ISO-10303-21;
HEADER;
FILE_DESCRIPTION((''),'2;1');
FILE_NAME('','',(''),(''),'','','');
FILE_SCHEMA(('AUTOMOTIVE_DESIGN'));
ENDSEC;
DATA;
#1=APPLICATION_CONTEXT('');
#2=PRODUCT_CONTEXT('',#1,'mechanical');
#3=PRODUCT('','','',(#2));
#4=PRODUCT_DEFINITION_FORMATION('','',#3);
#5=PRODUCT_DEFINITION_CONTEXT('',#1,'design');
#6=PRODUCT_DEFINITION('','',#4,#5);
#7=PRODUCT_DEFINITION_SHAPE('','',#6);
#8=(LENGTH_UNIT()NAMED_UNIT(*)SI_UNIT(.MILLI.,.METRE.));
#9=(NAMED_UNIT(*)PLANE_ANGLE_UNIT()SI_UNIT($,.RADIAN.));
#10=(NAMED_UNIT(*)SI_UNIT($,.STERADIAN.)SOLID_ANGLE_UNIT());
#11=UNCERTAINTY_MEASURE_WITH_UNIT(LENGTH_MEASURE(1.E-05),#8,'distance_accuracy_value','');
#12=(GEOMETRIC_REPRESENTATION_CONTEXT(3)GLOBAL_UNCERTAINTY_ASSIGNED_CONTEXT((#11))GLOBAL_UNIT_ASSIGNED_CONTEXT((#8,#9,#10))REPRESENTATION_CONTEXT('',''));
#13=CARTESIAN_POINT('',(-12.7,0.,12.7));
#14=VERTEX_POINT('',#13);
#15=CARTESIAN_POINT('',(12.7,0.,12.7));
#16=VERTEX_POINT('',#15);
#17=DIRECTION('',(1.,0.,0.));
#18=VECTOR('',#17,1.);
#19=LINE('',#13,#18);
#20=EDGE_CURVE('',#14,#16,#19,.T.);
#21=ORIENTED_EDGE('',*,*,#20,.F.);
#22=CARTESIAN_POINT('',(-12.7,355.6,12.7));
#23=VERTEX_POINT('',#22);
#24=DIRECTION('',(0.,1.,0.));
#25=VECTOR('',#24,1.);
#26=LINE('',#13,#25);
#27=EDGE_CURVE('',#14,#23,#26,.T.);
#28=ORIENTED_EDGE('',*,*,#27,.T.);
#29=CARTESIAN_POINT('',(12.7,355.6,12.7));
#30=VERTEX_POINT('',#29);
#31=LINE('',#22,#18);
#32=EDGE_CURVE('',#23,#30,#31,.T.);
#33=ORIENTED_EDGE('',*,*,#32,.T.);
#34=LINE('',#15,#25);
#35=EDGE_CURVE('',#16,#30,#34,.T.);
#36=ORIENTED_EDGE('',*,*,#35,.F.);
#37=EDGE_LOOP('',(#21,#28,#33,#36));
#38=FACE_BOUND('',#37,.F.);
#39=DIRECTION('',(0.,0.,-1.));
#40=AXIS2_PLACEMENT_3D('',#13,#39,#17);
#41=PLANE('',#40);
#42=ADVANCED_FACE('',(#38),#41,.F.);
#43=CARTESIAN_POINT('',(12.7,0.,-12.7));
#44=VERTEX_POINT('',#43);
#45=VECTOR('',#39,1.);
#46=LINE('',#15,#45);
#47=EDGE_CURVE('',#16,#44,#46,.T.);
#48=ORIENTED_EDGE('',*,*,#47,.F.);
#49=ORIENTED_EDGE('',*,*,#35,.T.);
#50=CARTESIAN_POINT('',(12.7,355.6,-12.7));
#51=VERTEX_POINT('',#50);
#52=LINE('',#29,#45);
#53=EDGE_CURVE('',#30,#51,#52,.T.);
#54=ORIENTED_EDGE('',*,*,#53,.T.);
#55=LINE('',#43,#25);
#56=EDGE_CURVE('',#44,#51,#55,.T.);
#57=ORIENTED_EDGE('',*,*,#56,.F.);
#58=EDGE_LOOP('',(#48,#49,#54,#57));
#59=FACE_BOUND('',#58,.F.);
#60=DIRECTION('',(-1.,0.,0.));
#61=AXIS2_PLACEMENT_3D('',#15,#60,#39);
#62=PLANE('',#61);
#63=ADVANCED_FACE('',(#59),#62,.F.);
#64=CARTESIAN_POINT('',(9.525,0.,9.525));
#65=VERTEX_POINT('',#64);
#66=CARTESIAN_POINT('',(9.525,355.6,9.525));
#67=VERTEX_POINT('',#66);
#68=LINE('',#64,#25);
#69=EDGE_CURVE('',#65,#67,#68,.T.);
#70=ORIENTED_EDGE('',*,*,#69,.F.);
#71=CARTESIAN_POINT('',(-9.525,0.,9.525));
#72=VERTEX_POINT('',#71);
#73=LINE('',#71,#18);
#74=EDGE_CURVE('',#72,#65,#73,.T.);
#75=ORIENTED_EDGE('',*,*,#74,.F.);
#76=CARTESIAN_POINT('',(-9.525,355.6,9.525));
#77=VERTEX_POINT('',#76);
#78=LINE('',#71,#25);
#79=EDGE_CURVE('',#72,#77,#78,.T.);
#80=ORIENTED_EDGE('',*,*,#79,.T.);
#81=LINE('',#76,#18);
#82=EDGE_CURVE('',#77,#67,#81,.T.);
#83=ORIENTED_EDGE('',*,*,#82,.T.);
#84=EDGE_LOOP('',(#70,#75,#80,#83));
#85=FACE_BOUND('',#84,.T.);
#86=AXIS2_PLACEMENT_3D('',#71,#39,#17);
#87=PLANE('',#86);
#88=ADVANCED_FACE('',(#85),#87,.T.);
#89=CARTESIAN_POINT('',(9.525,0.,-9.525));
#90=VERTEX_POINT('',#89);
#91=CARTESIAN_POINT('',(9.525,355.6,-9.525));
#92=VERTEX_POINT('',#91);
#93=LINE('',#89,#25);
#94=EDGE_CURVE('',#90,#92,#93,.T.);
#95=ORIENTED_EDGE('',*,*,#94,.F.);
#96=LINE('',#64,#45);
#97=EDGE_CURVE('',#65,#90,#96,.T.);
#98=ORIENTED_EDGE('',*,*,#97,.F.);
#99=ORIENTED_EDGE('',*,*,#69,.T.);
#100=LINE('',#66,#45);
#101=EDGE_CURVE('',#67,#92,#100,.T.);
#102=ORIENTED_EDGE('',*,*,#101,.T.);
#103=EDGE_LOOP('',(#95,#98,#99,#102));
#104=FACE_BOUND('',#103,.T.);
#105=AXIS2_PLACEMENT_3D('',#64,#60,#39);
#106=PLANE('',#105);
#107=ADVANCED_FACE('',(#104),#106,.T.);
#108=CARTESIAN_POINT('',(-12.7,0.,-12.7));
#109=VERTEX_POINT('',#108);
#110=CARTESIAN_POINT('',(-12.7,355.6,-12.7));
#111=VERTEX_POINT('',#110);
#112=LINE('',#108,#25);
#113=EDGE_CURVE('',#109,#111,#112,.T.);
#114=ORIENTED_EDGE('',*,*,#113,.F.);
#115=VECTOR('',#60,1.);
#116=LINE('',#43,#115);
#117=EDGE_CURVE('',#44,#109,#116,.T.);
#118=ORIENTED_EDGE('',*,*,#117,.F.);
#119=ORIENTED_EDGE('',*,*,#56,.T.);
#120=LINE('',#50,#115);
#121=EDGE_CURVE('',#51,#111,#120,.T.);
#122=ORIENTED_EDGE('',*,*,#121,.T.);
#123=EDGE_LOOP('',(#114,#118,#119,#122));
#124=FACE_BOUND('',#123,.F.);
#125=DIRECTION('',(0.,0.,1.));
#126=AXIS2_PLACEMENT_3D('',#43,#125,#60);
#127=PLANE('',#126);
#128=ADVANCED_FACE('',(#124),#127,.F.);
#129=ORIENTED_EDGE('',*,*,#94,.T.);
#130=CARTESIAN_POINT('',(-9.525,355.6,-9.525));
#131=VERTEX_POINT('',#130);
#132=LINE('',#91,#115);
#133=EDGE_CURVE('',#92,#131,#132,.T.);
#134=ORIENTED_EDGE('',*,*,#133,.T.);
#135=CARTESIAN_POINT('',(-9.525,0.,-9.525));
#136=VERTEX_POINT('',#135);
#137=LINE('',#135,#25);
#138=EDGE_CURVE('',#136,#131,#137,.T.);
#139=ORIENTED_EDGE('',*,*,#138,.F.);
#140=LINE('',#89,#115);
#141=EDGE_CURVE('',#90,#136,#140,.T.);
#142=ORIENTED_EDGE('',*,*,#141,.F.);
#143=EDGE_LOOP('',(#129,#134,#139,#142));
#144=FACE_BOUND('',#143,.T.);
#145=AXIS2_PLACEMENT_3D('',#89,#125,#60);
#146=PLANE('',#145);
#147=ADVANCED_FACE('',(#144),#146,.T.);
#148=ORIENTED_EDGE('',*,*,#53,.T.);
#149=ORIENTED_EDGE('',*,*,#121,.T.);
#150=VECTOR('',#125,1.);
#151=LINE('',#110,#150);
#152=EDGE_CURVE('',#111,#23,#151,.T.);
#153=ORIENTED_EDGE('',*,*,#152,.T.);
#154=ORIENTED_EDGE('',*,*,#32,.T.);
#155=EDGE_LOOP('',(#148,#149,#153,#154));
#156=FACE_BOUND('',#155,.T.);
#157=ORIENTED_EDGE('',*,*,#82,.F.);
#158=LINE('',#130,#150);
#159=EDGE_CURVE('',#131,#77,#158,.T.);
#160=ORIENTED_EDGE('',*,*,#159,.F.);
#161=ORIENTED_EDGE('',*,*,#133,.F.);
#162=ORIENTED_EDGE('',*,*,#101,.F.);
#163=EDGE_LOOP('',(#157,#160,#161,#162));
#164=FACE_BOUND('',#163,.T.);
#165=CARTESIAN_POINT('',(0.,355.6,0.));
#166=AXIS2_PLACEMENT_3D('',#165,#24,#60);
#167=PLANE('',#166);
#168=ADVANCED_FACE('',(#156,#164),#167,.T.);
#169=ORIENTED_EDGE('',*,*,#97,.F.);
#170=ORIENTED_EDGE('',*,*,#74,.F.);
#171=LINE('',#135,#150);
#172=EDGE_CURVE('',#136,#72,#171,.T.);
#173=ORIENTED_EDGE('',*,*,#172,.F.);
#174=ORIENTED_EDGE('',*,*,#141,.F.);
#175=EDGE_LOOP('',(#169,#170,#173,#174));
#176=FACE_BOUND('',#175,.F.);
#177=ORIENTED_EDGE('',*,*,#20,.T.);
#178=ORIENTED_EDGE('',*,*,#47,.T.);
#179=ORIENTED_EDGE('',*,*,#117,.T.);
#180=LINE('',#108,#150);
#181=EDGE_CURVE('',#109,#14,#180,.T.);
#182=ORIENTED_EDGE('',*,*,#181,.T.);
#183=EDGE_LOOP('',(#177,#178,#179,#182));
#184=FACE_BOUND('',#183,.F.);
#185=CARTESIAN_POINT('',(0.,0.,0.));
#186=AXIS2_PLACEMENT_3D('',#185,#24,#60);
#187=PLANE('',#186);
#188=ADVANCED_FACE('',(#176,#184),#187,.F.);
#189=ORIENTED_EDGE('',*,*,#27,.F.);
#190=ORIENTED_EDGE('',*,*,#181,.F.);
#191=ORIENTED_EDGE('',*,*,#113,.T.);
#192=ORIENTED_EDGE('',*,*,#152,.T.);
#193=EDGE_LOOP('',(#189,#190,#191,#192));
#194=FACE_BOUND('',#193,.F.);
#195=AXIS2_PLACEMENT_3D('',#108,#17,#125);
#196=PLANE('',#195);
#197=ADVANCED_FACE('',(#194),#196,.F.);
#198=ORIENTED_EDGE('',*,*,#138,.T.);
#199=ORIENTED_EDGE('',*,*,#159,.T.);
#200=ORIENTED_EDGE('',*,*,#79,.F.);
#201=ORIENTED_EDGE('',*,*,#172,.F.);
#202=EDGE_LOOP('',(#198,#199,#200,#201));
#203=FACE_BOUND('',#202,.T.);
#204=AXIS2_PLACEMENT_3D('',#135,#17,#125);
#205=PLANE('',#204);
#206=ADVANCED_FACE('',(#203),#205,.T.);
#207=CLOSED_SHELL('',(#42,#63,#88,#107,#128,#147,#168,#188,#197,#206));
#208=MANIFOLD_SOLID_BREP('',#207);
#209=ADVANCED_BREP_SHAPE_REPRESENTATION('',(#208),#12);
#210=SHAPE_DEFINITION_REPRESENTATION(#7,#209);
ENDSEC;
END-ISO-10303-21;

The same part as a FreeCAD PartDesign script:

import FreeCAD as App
import Part
import Sketcher
Q = App.Units.Quantity

doc = App.newDocument("Part")
body = doc.addObject("PartDesign::Body", "Body")

sketch1 = body.newObject("Sketcher::SketchObject", "Sketch")
sketch1.AttachmentSupport = (doc.getObject("XZ_Plane"), [""])
sketch1.MapMode = "FlatFace"
sketch1.addGeometry([
    Part.LineSegment(App.Vector(-12.7, -12.7, 0), App.Vector(-12.7, 12.7, 0)),
    Part.LineSegment(App.Vector(-12.7, 12.7, 0), App.Vector(12.7, 12.7, 0)),
    Part.LineSegment(App.Vector(12.7, 12.7, 0), App.Vector(12.7, -12.7, 0)),
    Part.LineSegment(App.Vector(12.7, -12.7, 0), App.Vector(-12.7, -12.7, 0)),
    Part.LineSegment(App.Vector(9.525, 9.525, 0), App.Vector(-9.525, 9.525, 0)),
    Part.LineSegment(App.Vector(-9.525, 9.525, 0), App.Vector(-9.525, -9.525, 0)),
    Part.LineSegment(App.Vector(-9.525, -9.525, 0), App.Vector(9.525, -9.525, 0)),
    Part.LineSegment(App.Vector(9.525, -9.525, 0), App.Vector(9.525, 9.525, 0)),
], False)
sketch1.addConstraint([
    Sketcher.Constraint("Coincident", 0, 2, 1, 1),
    Sketcher.Constraint("Coincident", 1, 2, 2, 1),
    Sketcher.Constraint("Coincident", 2, 2, 3, 1),
    Sketcher.Constraint("Coincident", 3, 2, 0, 1),
    Sketcher.Constraint("Coincident", 4, 2, 5, 1),
    Sketcher.Constraint("Coincident", 5, 2, 6, 1),
    Sketcher.Constraint("Coincident", 6, 2, 7, 1),
    Sketcher.Constraint("Coincident", 7, 2, 4, 1),
    Sketcher.Constraint("Vertical", 0),
    Sketcher.Constraint("Horizontal", 1),
    Sketcher.Constraint("Vertical", 2),
    Sketcher.Constraint("Horizontal", 3),
    Sketcher.Constraint("Horizontal", 4),
    Sketcher.Constraint("Vertical", 5),
    Sketcher.Constraint("Horizontal", 6),
    Sketcher.Constraint("Vertical", 7),
    Sketcher.Constraint("Symmetric", 0, 2, 2, 2, -1, 1),
    Sketcher.Constraint("Symmetric", 4, 2, 6, 2, -1, 1),
    Sketcher.Constraint("Equal", 3, 0),
    Sketcher.Constraint("Equal", 6, 5),
    Sketcher.Constraint("DistanceX", 1, 1, 1, 2, Q("1 in")),
    Sketcher.Constraint("DistanceX", 0, 2, 4, 2, Q("0.125 in")),
])
pad1 = body.newObject("PartDesign::Pad", "Pad")
pad1.Profile = sketch1
pad1.Length = Q("14 in")
pad1.Reversed = True

doc.recompute()
